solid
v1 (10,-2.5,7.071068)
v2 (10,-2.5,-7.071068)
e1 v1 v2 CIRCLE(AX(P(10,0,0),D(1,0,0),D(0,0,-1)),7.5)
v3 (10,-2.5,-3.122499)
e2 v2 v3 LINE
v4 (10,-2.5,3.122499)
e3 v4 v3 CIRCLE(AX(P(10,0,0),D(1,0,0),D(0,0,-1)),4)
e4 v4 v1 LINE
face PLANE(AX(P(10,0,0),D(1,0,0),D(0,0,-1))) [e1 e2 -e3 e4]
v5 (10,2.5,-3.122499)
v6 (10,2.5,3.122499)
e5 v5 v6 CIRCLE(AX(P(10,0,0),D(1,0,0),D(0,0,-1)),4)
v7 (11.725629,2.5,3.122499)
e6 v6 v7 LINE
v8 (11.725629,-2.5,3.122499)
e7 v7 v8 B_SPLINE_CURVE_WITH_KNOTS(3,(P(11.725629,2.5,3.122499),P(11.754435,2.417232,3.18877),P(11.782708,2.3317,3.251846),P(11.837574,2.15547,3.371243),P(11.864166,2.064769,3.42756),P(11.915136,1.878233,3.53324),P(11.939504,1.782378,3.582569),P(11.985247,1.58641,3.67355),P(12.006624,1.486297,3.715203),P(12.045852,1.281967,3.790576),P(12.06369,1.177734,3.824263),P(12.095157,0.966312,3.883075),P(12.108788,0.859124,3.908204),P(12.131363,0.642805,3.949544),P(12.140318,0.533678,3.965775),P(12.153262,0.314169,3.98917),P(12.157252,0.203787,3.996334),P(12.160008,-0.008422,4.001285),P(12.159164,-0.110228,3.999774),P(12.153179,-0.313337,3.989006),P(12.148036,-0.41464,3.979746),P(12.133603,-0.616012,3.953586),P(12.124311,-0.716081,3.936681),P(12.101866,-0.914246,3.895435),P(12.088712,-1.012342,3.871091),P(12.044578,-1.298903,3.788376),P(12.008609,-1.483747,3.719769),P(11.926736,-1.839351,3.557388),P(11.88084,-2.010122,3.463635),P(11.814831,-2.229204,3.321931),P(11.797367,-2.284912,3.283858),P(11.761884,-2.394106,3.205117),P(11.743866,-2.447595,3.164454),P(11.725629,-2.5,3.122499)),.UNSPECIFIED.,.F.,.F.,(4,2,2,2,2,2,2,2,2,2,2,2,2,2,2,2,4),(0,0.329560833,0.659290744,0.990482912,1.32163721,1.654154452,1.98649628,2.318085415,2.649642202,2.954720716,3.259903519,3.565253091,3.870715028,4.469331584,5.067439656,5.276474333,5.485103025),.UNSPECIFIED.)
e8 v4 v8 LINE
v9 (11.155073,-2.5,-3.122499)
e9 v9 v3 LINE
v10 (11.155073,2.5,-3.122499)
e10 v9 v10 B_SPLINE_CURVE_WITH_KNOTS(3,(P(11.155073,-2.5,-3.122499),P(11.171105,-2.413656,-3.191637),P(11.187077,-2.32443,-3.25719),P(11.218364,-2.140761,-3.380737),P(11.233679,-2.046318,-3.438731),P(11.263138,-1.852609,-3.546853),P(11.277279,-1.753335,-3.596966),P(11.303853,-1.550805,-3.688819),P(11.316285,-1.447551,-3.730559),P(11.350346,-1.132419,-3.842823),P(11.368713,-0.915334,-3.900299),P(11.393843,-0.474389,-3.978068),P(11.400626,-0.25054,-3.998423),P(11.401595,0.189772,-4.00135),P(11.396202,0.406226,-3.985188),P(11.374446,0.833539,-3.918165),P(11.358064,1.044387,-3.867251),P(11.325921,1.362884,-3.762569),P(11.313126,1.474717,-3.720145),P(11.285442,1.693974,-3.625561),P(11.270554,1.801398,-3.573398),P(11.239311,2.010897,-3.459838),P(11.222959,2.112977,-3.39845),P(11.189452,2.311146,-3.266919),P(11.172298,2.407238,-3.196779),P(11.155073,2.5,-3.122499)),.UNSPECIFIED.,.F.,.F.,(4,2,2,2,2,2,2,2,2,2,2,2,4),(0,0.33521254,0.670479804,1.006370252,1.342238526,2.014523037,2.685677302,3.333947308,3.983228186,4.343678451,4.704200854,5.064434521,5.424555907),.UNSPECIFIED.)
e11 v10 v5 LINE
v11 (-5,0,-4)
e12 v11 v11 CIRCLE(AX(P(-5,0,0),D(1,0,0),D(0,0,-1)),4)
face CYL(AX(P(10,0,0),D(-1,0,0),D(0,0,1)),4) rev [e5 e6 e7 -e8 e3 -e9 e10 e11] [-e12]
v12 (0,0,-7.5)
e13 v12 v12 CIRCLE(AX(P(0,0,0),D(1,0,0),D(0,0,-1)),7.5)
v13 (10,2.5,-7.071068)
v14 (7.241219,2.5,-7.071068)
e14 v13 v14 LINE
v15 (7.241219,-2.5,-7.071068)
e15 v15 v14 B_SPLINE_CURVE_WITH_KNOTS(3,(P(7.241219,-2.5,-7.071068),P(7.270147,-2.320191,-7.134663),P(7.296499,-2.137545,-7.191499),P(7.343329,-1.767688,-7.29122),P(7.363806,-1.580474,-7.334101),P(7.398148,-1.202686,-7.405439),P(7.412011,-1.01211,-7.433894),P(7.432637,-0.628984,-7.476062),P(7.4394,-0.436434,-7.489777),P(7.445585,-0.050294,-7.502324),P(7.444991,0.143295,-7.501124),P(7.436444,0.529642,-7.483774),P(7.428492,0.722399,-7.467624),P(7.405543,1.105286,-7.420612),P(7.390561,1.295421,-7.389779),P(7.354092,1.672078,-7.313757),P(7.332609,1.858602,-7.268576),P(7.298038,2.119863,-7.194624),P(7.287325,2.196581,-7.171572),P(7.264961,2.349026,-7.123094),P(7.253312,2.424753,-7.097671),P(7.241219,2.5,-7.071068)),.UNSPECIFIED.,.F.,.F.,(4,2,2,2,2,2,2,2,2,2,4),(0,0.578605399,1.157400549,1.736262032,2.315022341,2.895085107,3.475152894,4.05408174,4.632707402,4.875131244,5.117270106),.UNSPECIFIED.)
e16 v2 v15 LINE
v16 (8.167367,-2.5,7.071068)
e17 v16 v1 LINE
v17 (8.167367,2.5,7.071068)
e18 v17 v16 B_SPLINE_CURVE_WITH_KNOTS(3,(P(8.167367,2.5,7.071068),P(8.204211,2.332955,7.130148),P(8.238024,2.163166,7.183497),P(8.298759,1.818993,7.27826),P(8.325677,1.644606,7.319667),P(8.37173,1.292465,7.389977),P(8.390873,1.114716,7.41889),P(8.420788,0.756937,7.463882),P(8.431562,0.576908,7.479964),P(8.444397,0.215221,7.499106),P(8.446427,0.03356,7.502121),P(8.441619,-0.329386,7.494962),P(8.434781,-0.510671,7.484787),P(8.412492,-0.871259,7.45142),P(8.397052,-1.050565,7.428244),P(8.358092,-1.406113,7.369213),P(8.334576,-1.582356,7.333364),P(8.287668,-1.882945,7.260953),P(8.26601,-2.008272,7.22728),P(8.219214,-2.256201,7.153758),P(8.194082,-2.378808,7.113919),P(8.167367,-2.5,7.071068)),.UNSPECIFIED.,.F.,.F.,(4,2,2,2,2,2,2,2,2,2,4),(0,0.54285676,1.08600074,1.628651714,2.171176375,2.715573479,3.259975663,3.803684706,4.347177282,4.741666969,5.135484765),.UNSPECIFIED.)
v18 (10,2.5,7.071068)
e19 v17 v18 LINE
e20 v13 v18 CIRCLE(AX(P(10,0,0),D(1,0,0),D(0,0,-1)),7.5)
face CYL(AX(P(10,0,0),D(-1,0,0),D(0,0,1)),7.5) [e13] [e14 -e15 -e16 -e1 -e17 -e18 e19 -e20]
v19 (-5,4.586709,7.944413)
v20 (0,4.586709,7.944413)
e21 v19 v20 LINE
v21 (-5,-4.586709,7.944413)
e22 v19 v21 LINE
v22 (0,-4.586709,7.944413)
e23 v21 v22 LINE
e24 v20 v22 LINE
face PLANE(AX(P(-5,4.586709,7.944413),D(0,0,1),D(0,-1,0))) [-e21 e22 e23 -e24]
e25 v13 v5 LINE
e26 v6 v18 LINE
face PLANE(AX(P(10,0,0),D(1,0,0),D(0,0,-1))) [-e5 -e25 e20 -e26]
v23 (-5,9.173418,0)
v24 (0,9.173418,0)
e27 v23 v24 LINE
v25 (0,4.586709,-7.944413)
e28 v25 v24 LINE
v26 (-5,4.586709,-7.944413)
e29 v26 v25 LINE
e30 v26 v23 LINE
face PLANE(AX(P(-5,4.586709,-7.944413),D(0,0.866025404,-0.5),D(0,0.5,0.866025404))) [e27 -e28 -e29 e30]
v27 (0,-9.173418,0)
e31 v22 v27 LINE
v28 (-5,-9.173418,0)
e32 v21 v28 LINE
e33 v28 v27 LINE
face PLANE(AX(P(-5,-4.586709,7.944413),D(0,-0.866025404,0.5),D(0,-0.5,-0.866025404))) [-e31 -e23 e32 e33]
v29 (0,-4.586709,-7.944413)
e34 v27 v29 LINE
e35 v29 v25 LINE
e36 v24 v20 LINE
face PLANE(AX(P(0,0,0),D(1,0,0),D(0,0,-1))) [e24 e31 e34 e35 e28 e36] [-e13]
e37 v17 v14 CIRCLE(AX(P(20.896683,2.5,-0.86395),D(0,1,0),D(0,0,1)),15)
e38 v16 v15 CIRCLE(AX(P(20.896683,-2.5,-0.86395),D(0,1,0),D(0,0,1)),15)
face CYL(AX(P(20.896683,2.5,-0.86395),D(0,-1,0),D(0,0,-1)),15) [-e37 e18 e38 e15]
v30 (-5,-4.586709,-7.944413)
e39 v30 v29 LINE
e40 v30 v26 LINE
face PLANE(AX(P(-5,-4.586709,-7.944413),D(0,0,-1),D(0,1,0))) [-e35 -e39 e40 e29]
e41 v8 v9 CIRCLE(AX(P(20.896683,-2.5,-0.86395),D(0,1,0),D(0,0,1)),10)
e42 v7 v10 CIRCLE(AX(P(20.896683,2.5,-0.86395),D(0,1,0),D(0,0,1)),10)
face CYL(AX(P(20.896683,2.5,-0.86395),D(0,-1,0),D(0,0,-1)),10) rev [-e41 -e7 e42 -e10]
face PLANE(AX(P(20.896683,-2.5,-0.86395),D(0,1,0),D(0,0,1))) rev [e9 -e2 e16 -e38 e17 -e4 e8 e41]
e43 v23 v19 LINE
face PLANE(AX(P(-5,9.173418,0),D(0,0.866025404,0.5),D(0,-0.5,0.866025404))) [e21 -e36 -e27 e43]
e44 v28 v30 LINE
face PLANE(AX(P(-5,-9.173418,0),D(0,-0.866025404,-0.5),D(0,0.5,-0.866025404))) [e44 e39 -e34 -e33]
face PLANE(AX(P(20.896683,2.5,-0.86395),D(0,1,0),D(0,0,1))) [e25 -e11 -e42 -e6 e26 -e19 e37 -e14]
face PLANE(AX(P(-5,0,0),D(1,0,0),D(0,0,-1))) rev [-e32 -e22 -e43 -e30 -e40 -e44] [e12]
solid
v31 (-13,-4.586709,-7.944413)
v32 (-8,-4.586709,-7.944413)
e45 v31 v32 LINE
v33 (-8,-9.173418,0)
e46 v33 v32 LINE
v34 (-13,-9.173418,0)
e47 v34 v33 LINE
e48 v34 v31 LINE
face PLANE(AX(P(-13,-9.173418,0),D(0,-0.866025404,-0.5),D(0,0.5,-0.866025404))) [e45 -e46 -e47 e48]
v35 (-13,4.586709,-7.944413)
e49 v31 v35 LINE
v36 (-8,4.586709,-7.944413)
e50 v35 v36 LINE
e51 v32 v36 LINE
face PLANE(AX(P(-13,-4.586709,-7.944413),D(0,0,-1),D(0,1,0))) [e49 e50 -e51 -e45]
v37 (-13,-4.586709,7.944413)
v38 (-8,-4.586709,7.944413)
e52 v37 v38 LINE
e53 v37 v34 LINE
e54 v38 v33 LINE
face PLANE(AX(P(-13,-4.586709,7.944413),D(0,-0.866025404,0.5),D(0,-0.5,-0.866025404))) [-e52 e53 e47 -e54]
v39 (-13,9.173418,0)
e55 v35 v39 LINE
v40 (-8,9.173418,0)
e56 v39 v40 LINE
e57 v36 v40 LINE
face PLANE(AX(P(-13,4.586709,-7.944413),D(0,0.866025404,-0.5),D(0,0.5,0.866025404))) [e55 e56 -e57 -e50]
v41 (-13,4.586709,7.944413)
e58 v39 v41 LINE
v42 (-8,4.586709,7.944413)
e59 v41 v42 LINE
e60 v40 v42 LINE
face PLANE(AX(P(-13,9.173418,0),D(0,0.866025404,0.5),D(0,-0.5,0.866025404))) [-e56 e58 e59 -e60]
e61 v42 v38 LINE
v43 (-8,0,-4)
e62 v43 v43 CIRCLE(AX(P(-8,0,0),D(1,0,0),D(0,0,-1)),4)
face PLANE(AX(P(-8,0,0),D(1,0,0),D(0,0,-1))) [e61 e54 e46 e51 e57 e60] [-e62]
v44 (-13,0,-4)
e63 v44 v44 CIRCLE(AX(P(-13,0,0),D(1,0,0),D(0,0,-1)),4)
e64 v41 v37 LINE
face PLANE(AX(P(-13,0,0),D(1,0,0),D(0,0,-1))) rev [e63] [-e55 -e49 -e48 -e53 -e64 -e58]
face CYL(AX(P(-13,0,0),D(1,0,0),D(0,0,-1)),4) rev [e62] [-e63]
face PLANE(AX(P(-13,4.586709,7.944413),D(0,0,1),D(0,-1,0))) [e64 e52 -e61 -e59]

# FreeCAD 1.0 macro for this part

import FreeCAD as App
import Part
import Sketcher

V = App.Vector
Q = App.Units.Quantity


def add_polygon(sketch, points):
    """Adds a closed chain of lines whose ends are joined by coincident constraints."""
    first, n = sketch.GeometryCount, len(points)
    for a, b in zip(points, points[1:] + points[:1]):
        sketch.addGeometry(Part.LineSegment(App.Vector(*a, 0), App.Vector(*b, 0)), False)
    for i in range(n):
        sketch.addConstraint(Sketcher.Constraint("Coincident", first + i, 2, first + (i + 1) % n, 1))

doc = App.newDocument("Part")
body = doc.addObject("PartDesign::Body", "Body")

# Sketch on YZ plane
sketch1 = body.newObject("Sketcher::SketchObject", "Sketch")
sketch1.AttachmentSupport = (doc.getObject("YZ_Plane"), [""])
sketch1.MapMode = "FlatFace"
sketch1.addGeometry([
    Part.Circle(V(0, 0, 0), V(0, 0, 1), 7.5),
    Part.Circle(V(0, 0, 0), V(0, 0, 1), 4),
], False)
sketch1.addConstraint([
    Sketcher.Constraint("Coincident", 0, 3, -1, 1),
    Sketcher.Constraint("Coincident", 1, 3, -1, 1),
    Sketcher.Constraint("Diameter", 0, Q("15 mm")),
    Sketcher.Constraint("Diameter", 1, Q("8 mm")),
])
pad1 = body.newObject("PartDesign::Pad", "Pad")
pad1.Profile = sketch1
pad1.Length = 10

# Sketch on XZ plane
sketch2 = body.newObject("Sketcher::SketchObject", "Sketch001")
sketch2.AttachmentSupport = (doc.getObject("XZ_Plane"), [""])
sketch2.MapMode = "FlatFace"
sketch2.addGeometry([
    Part.Circle(V(21, -1, 0), V(0, 0, 1), 15),
    Part.Circle(V(21, -1, 0), V(0, 0, 1), 10),
], False)
sketch2.addConstraint([
    Sketcher.Constraint("Coincident", 1, 3, 0, 3),
    Sketcher.Constraint("Diameter", 0, Q("30 mm")),
    Sketcher.Constraint("Diameter", 1, Q("20 mm")),
    Sketcher.Constraint("DistanceY", 0, 3, -1, 1, Q("0.86395 mm")),
    Sketcher.Constraint("DistanceX", -1, 1, 0, 3, Q("20.896683 mm")),
])
pad2 = body.newObject("PartDesign::Pad", "Pad001")
pad2.Profile = sketch2
pad2.Length = 5
pad2.Midplane = True

# Sketch on YZ plane
sketch3 = body.newObject("Sketcher::SketchObject", "Sketch002")
sketch3.AttachmentSupport = (doc.getObject("YZ_Plane"), [""])
sketch3.MapMode = "FlatFace"
add_polygon(sketch3, [(-9, 0), (-5, -8), (5, -8), (9, 0), (5, 8), (-5, 8)])  # lines 0-5
sketch3.addConstraint([
    Sketcher.Constraint("Horizontal", 1),
    Sketcher.Constraint("Horizontal", 4),
    Sketcher.Constraint("Symmetric", 0, 2, 3, 2, -1, 1),
    Sketcher.Constraint("Symmetric", 2, 2, 5, 2, -1, 1),
    Sketcher.Constraint("PointOnObject", 2, 2, -1),
    Sketcher.Constraint("Parallel", 2, 5),
    Sketcher.Constraint("Vertical", 1, 2, 3, 2),
    Sketcher.Constraint("Angle", 0, Q("-60 deg")),
    Sketcher.Constraint("DistanceX", 1, 1, 1, 2, Q("9.173418 mm")),
    Sketcher.Constraint("DistanceX", 1, 2, 2, 2, Q("4.586709 mm")),
])
pad3 = body.newObject("PartDesign::Pad", "Pad002")
pad3.Profile = sketch3
pad3.Length = 5
pad3.Reversed = True
body2 = doc.addObject("PartDesign::Body", "Body001")

# Sketch on YZ plane
sketch4 = body2.newObject("Sketcher::SketchObject", "Sketch003")
sketch4.AttachmentSupport = (doc.getObject("YZ_Plane001"), [""])
sketch4.MapMode = "FlatFace"
sketch4.AttachmentOffset = App.Placement(V(0, 0, -8), App.Rotation())
add_polygon(sketch4, [(-9, 0), (-5, -8), (5, -8), (9, 0), (5, 8), (-5, 8)])  # lines 0-5
sketch4.addConstraint([
    Sketcher.Constraint("Horizontal", 1),
    Sketcher.Constraint("Horizontal", 4),
    Sketcher.Constraint("Symmetric", 0, 2, 3, 2, -1, 1),
    Sketcher.Constraint("Symmetric", 2, 2, 5, 2, -1, 1),
    Sketcher.Constraint("PointOnObject", 2, 2, -1),
    Sketcher.Constraint("Parallel", 2, 5),
    Sketcher.Constraint("Vertical", 1, 2, 3, 2),
    Sketcher.Constraint("Angle", 0, Q("-60 deg")),
    Sketcher.Constraint("DistanceX", 1, 1, 1, 2, Q("9.173418 mm")),
    Sketcher.Constraint("DistanceX", 1, 2, 2, 2, Q("4.586709 mm")),
])
pad4 = body2.newObject("PartDesign::Pad", "Pad003")
pad4.Profile = sketch4
pad4.Length = 5
pad4.Reversed = True
body3 = doc.addObject("PartDesign::Body", "Body002")

# Sketch on YZ plane
sketch5 = body3.newObject("Sketcher::SketchObject", "Sketch004")
sketch5.AttachmentSupport = (doc.getObject("YZ_Plane002"), [""])
sketch5.MapMode = "FlatFace"
sketch5.AttachmentOffset = App.Placement(V(0, 0, -13), App.Rotation())
sketch5.addGeometry(Part.Circle(V(0, 0, 0), V(0, 0, 1), 4), False)
sketch5.addConstraint([
    Sketcher.Constraint("Coincident", 0, 3, -1, 1),
    Sketcher.Constraint("Diameter", 0, Q("8 mm")),
])
pad5 = body3.newObject("PartDesign::Pad", "Pad004")
pad5.Profile = sketch5
pad5.Length = 25.159292
doc.recompute()

body4 = doc.addObject("PartDesign::Body", "Body003")
body4.BaseFeature = body3
boolean = body.newObject("PartDesign::Boolean", "Boolean")
boolean.Type = "Cut"
boolean.addObjects([body4])
doc.recompute()

boolean2 = body2.newObject("PartDesign::Boolean", "Boolean001")
boolean2.Type = "Cut"
boolean2.addObjects([body3])

doc.recompute()
